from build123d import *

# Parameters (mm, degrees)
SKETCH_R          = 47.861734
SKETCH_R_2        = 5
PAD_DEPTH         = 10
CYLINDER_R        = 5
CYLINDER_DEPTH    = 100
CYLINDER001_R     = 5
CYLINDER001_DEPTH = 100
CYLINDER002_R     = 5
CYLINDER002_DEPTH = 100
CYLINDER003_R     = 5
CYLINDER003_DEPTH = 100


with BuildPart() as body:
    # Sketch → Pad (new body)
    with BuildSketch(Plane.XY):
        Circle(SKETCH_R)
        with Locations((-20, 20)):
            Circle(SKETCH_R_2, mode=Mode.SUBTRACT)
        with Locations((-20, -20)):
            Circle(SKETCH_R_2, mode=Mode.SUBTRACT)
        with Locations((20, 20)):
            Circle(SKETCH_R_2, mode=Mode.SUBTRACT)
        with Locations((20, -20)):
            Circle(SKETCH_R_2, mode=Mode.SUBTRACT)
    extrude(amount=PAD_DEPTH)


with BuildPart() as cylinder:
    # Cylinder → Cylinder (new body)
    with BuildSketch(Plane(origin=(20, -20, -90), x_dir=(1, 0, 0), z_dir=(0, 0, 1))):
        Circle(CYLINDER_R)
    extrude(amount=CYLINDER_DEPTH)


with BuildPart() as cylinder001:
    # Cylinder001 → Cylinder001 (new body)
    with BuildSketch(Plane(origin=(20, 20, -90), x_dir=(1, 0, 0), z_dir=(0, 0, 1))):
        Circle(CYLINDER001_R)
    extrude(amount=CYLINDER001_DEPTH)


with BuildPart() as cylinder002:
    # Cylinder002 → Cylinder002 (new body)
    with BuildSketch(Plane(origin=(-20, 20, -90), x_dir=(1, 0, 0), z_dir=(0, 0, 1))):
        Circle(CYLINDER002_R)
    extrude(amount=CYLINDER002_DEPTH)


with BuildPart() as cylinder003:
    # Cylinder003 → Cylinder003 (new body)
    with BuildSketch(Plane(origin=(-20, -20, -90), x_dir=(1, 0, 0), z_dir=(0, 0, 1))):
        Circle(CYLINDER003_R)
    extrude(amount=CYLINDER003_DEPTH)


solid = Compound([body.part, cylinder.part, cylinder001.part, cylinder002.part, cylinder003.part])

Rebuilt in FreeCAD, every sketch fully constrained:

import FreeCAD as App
import Part
import Sketcher
Q = App.Units.Quantity

doc = App.newDocument("Part")
body = doc.addObject("PartDesign::Body", "Body")

sketch1 = doc.addObject("Sketcher::SketchObject", "Sketch")
body.addObject(sketch1)
sketch1.AttachmentSupport = (doc.XY_Plane, [""])
sketch1.MapMode = "FlatFace"
sketch1.addGeometry(Part.Circle(App.Vector(0, 0, 0), App.Vector(0, 0, 1), 48), False)
sketch1.addGeometry(Part.Circle(App.Vector(-20, -20, 0), App.Vector(0, 0, 1), 5), False)
sketch1.addGeometry(Part.Circle(App.Vector(20, -20, 0), App.Vector(0, 0, 1), 5), False)
sketch1.addGeometry(Part.Circle(App.Vector(-20, 20, 0), App.Vector(0, 0, 1), 5), False)
sketch1.addGeometry(Part.Circle(App.Vector(20, 20, 0), App.Vector(0, 0, 1), 5), False)
sketch1.addConstraint(Sketcher.Constraint("Coincident", 0, 3, -1, 1))
sketch1.addConstraint(Sketcher.Constraint("Equal", 1, 2))
sketch1.addConstraint(Sketcher.Constraint("Equal", 2, 3))
sketch1.addConstraint(Sketcher.Constraint("Equal", 3, 4))
sketch1.addConstraint(Sketcher.Constraint("Symmetric", 2, 3, 3, 3, -1, 1))
sketch1.addConstraint(Sketcher.Constraint("Symmetric", 1, 3, 4, 3, -1, 1))
sketch1.addConstraint(Sketcher.Constraint("Symmetric", 1, 3, 2, 3, -2))
sketch1.addConstraint(Sketcher.Constraint("Diameter", 1, Q("10 mm")))
sketch1.addConstraint(Sketcher.Constraint("DistanceX", 1, 3, -1, 1, Q("20 mm")))
sketch1.addConstraint(Sketcher.Constraint("DistanceY", 1, 3, -1, 1, Q("20 mm")))
sketch1.addConstraint(Sketcher.Constraint("Diameter", 0, Q("95.723468 mm")))
pad1 = doc.addObject("PartDesign::Pad", "Pad")
body.addObject(pad1)
pad1.Profile = sketch1
pad1.Length = 10
body2 = doc.addObject("PartDesign::Body", "Body001")

sketch2 = doc.addObject("Sketcher::SketchObject", "Sketch001")
body2.addObject(sketch2)
sketch2.AttachmentSupport = (doc.getObject("XY_Plane001"), [""])
sketch2.MapMode = "FlatFace"
sketch2.AttachmentOffset = App.Placement(App.Vector(0, 0, -90), App.Rotation())
sketch2.addGeometry(Part.Circle(App.Vector(20, -20, 0), App.Vector(0, 0, 1), 5), False)
sketch2.addConstraint(Sketcher.Constraint("Diameter", 0, Q("10 mm")))
sketch2.addConstraint(Sketcher.Constraint("DistanceX", -1, 1, 0, 3, Q("20 mm")))
sketch2.addConstraint(Sketcher.Constraint("DistanceY", 0, 3, -1, 1, Q("20 mm")))
pad2 = doc.addObject("PartDesign::Pad", "Pad001")
body2.addObject(pad2)
pad2.Profile = sketch2
pad2.Length = 100
body3 = doc.addObject("PartDesign::Body", "Body002")

sketch3 = doc.addObject("Sketcher::SketchObject", "Sketch002")
body3.addObject(sketch3)
sketch3.AttachmentSupport = (doc.getObject("XY_Plane002"), [""])
sketch3.MapMode = "FlatFace"
sketch3.AttachmentOffset = App.Placement(App.Vector(0, 0, -90), App.Rotation())
sketch3.addGeometry(Part.Circle(App.Vector(20, 20, 0), App.Vector(0, 0, 1), 5), False)
sketch3.addConstraint(Sketcher.Constraint("Diameter", 0, Q("10 mm")))
sketch3.addConstraint(Sketcher.Constraint("DistanceX", -1, 1, 0, 3, Q("20 mm")))
sketch3.addConstraint(Sketcher.Constraint("DistanceY", -1, 1, 0, 3, Q("20 mm")))
pad3 = doc.addObject("PartDesign::Pad", "Pad002")
body3.addObject(pad3)
pad3.Profile = sketch3
pad3.Length = 100
body4 = doc.addObject("PartDesign::Body", "Body003")

sketch4 = doc.addObject("Sketcher::SketchObject", "Sketch003")
body4.addObject(sketch4)
sketch4.AttachmentSupport = (doc.getObject("XY_Plane003"), [""])
sketch4.MapMode = "FlatFace"
sketch4.AttachmentOffset = App.Placement(App.Vector(0, 0, -90), App.Rotation())
sketch4.addGeometry(Part.Circle(App.Vector(-20, 20, 0), App.Vector(0, 0, 1), 5), False)
sketch4.addConstraint(Sketcher.Constraint("Diameter", 0, Q("10 mm")))
sketch4.addConstraint(Sketcher.Constraint("DistanceX", 0, 3, -1, 1, Q("20 mm")))
sketch4.addConstraint(Sketcher.Constraint("DistanceY", -1, 1, 0, 3, Q("20 mm")))
pad4 = doc.addObject("PartDesign::Pad", "Pad003")
body4.addObject(pad4)
pad4.Profile = sketch4
pad4.Length = 100
body5 = doc.addObject("PartDesign::Body", "Body004")

sketch5 = doc.addObject("Sketcher::SketchObject", "Sketch004")
body5.addObject(sketch5)
sketch5.AttachmentSupport = (doc.getObject("XY_Plane004"), [""])
sketch5.MapMode = "FlatFace"
sketch5.AttachmentOffset = App.Placement(App.Vector(0, 0, -90), App.Rotation())
sketch5.addGeometry(Part.Circle(App.Vector(-20, -20, 0), App.Vector(0, 0, 1), 5), False)
sketch5.addConstraint(Sketcher.Constraint("Diameter", 0, Q("10 mm")))
sketch5.addConstraint(Sketcher.Constraint("DistanceX", 0, 3, -1, 1, Q("20 mm")))
sketch5.addConstraint(Sketcher.Constraint("DistanceY", 0, 3, -1, 1, Q("20 mm")))
pad5 = doc.addObject("PartDesign::Pad", "Pad004")
body5.addObject(pad5)
pad5.Profile = sketch5
pad5.Length = 100

doc.recompute()
